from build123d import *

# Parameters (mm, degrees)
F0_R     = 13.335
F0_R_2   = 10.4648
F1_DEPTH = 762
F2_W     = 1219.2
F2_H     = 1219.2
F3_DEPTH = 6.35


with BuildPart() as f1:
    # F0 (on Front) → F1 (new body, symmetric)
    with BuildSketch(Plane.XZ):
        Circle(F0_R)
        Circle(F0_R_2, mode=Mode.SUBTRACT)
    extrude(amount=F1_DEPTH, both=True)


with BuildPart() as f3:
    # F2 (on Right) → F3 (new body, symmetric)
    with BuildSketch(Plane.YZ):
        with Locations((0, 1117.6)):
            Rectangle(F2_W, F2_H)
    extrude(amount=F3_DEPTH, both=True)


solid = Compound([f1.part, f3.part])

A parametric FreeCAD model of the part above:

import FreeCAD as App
import Part
import Sketcher
Q = App.Units.Quantity

doc = App.newDocument("Part")
body = doc.addObject("PartDesign::Body", "Body")

# Sketch on XZ plane
sketch1 = body.newObject("Sketcher::SketchObject", "Sketch")
sketch1.AttachmentSupport = (doc.getObject("XZ_Plane"), [""])
sketch1.MapMode = "FlatFace"
sketch1.addGeometry(Part.Circle(App.Vector(0, 0, 0), App.Vector(0, 0, 1), 13), False)
sketch1.addGeometry(Part.Circle(App.Vector(0, 0, 0), App.Vector(0, 0, 1), 10), False)
sketch1.addConstraint(Sketcher.Constraint("Coincident", 0, 3, -1, 1))
sketch1.addConstraint(Sketcher.Constraint("Coincident", 1, 3, -1, 1))
sketch1.addConstraint(Sketcher.Constraint("Diameter", 0, Q("1.05 in")))
sketch1.addConstraint(Sketcher.Constraint("Diameter", 1, Q("0.824 in")))
pad1 = body.newObject("PartDesign::Pad", "Pad")
pad1.Profile = sketch1
pad1.Length = Q("60 in")
pad1.Midplane = True
body2 = doc.addObject("PartDesign::Body", "Body001")

# Sketch on YZ plane
sketch2 = body2.newObject("Sketcher::SketchObject", "Sketch001")
sketch2.AttachmentSupport = (doc.getObject("YZ_Plane001"), [""])
sketch2.MapMode = "FlatFace"
sketch2.addGeometry(Part.LineSegment(App.Vector(-610, 1727, 0), App.Vector(-610, 508, 0)), False)
sketch2.addGeometry(Part.LineSegment(App.Vector(-610, 508, 0), App.Vector(610, 508, 0)), False)
sketch2.addGeometry(Part.LineSegment(App.Vector(610, 508, 0), App.Vector(610, 1727, 0)), False)
sketch2.addGeometry(Part.LineSegment(App.Vector(610, 1727, 0), App.Vector(-610, 1727, 0)), False)
sketch2.addConstraint(Sketcher.Constraint("Coincident", 0, 2, 1, 1))
sketch2.addConstraint(Sketcher.Constraint("Coincident", 1, 2, 2, 1))
sketch2.addConstraint(Sketcher.Constraint("Coincident", 2, 2, 3, 1))
sketch2.addConstraint(Sketcher.Constraint("Coincident", 3, 2, 0, 1))
sketch2.addConstraint(Sketcher.Constraint("Vertical", 0))
sketch2.addConstraint(Sketcher.Constraint("Horizontal", 1))
sketch2.addConstraint(Sketcher.Constraint("Vertical", 2))
sketch2.addConstraint(Sketcher.Constraint("Horizontal", 3))
sketch2.addConstraint(Sketcher.Constraint("Equal", 3, 0))
sketch2.addConstraint(Sketcher.Constraint("DistanceX", 1, 1, 1, 2, Q("48 in")))
sketch2.addConstraint(Sketcher.Constraint("DistanceX", 0, 2, -1, 1, Q("24 in")))
sketch2.addConstraint(Sketcher.Constraint("DistanceY", -1, 1, 0, 2, Q("20 in")))
pad2 = body2.newObject("PartDesign::Pad", "Pad001")
pad2.Profile = sketch2
pad2.Length = Q("0.5 in")
pad2.Midplane = True

doc.recompute()
